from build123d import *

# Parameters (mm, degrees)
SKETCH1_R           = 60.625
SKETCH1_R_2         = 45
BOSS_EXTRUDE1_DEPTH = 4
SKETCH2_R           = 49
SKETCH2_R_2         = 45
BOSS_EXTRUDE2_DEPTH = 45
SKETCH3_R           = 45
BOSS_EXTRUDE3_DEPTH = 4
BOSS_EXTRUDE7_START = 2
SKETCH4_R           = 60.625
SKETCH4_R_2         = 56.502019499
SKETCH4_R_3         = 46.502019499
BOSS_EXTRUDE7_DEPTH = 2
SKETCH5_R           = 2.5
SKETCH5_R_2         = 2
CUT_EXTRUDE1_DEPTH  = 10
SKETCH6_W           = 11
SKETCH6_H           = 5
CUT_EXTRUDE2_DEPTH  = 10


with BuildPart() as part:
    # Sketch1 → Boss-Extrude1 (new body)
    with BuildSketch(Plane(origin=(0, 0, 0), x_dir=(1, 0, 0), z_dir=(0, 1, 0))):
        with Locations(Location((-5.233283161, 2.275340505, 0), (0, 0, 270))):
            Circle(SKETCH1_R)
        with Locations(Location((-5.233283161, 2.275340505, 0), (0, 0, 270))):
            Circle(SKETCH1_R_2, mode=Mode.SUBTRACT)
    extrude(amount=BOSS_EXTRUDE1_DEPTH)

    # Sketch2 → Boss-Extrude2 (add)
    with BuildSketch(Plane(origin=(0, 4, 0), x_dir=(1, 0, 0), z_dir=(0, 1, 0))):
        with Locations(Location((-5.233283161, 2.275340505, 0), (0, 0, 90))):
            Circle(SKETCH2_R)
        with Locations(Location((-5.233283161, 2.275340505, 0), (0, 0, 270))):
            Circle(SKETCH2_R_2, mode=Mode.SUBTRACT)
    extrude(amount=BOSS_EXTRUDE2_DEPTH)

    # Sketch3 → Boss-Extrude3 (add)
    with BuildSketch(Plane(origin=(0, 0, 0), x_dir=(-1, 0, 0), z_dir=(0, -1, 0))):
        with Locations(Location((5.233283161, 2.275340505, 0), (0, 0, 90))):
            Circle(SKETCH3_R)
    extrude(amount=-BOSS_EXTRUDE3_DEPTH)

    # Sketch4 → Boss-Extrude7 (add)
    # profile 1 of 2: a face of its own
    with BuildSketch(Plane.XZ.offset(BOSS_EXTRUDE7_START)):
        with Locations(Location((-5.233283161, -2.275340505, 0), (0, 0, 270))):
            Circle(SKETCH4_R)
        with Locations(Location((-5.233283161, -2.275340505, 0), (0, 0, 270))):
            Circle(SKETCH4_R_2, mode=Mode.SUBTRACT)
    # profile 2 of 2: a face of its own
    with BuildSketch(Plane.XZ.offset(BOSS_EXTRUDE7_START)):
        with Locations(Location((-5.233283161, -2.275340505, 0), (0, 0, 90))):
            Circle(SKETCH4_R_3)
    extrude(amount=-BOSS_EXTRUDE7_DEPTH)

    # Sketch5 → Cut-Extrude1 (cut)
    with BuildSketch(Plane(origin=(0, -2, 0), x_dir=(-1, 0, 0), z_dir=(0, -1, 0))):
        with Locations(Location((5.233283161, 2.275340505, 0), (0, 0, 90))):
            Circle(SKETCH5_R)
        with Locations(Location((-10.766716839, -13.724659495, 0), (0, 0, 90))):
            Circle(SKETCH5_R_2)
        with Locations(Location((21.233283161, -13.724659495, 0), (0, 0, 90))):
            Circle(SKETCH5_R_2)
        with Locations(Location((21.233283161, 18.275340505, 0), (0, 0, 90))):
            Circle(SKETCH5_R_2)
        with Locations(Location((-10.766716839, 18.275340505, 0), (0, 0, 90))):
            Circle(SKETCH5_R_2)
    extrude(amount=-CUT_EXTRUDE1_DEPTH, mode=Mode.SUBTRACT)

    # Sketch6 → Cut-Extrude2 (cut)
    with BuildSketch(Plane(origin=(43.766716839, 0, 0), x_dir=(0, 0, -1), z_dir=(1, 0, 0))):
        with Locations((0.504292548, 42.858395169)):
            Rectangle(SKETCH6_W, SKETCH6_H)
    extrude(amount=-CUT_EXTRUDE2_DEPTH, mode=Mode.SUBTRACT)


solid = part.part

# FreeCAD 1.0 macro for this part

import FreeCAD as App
import Part
import Sketcher

V = App.Vector
Q = App.Units.Quantity


def add_polygon(sketch, points):
    """Adds a closed chain of lines whose ends are joined by coincident constraints."""
    first, n = sketch.GeometryCount, len(points)
    for a, b in zip(points, points[1:] + points[:1]):
        sketch.addGeometry(Part.LineSegment(App.Vector(*a, 0), App.Vector(*b, 0)), False)
    for i in range(n):
        sketch.addConstraint(Sketcher.Constraint("Coincident", first + i, 2, first + (i + 1) % n, 1))

doc = App.newDocument("Part")
params = doc.addObject("Spreadsheet::Sheet", "Params")
for row, (alias, value) in enumerate([
    ("sketch1_diameter", "90 mm"),
    ("sketch1_diameter2", "121.25 mm"),
    ("pad1_length", "4 mm"),
    ("sketch2_diameter", "98 mm"),
    ("sketch2_diameter2", "90 mm"),
    ("pad2_length", "45 mm"),
    ("sketch3_diameter", "90 mm"),
    ("pad3_length", "4 mm"),
    ("sketch4_diameter", "121.25 mm"),
    ("pad4_length", "2 mm"),
    ("sketch5_diameter", "5 mm"),
    ("sketch5_diameter2", "4 mm"),
    ("pocket1_length", "10 mm"),
    ("sketch6_width", "5 mm"),
    ("sketch6_height", "11 mm"),
    ("pocket2_length", "10 mm"),
], start=1):
    params.set(f"A{row}", alias)
    params.set(f"B{row}", "=" + value)
    params.setAlias(f"B{row}", alias)

body = doc.addObject("PartDesign::Body", "Body")

sketch1 = body.newObject("Sketcher::SketchObject", "Sketch")
sketch1.AttachmentSupport = (doc.getObject("XZ_Plane"), [""])
sketch1.MapMode = "FlatFace"
sketch1.addGeometry([
    Part.Circle(V(-5, -2, 0), V(0, 0, 1), 61),
    Part.Circle(V(-5, -2, 0), V(0, 0, 1), 45),
], False)
sketch1.addConstraint([
    Sketcher.Constraint("Coincident", 1, 3, 0, 3),
    Sketcher.Constraint("Diameter", 1, Q("90 mm")),
    Sketcher.Constraint("Diameter", 0, Q("121.25 mm")),
    Sketcher.Constraint("DistanceY", 0, 3, -1, 1, Q("2.275341 mm")),
    Sketcher.Constraint("DistanceX", 0, 3, -1, 1, Q("5.233283 mm")),
])
sketch1.setExpression("Constraints[1]", "Params.sketch1_diameter")
sketch1.setExpression("Constraints[2]", "Params.sketch1_diameter2")
pad1 = body.newObject("PartDesign::Pad", "Pad")
pad1.Profile = sketch1
pad1.setExpression("Length", "Params.pad1_length")
pad1.Reversed = True

sketch2 = body.newObject("Sketcher::SketchObject", "Sketch001")
sketch2.AttachmentSupport = (doc.getObject("XZ_Plane"), [""])
sketch2.MapMode = "FlatFace"
sketch2.AttachmentOffset = App.Placement(V(0, 0, -4), App.Rotation())
sketch2.addGeometry([
    Part.Circle(V(-5, -2, 0), V(0, 0, 1), 49),
    Part.Circle(V(-5, -2, 0), V(0, 0, 1), 45),
], False)
sketch2.addConstraint([
    Sketcher.Constraint("Coincident", 1, 3, 0, 3),
    Sketcher.Constraint("Diameter", 0, Q("98 mm")),
    Sketcher.Constraint("Diameter", 1, Q("90 mm")),
    Sketcher.Constraint("DistanceY", 0, 3, -1, 1, Q("2.275341 mm")),
    Sketcher.Constraint("DistanceX", 0, 3, -1, 1, Q("5.233283 mm")),
])
sketch2.setExpression("Constraints[1]", "Params.sketch2_diameter")
sketch2.setExpression("Constraints[2]", "Params.sketch2_diameter2")
pad2 = body.newObject("PartDesign::Pad", "Pad001")
pad2.Profile = sketch2
pad2.setExpression("Length", "Params.pad2_length")
pad2.Reversed = True

sketch3 = body.newObject("Sketcher::SketchObject", "Sketch002")
sketch3.AttachmentSupport = (doc.getObject("XZ_Plane"), [""])
sketch3.MapMode = "FlatFace"
sketch3.addGeometry(Part.Circle(V(-5, -2, 0), V(0, 0, 1), 45), False)
sketch3.addConstraint([
    Sketcher.Constraint("Diameter", 0, Q("90 mm")),
    Sketcher.Constraint("DistanceY", 0, 3, -1, 1, Q("2.275341 mm")),
    Sketcher.Constraint("DistanceX", 0, 3, -1, 1, Q("5.233283 mm")),
])
sketch3.setExpression("Constraints[0]", "Params.sketch3_diameter")
pad3 = body.newObject("PartDesign::Pad", "Pad002")
pad3.Profile = sketch3
pad3.setExpression("Length", "Params.pad3_length")
pad3.Reversed = True

sketch4 = body.newObject("Sketcher::SketchObject", "Sketch003")
sketch4.AttachmentSupport = (doc.getObject("XZ_Plane"), [""])
sketch4.MapMode = "FlatFace"
sketch4.AttachmentOffset = App.Placement(V(0, 0, 2), App.Rotation())
sketch4.addGeometry([
    Part.Circle(V(-5, -2, 0), V(0, 0, 1), 61),
    Part.Circle(V(-5, -2, 0), V(0, 0, 1), 57),
    Part.Circle(V(-5, -2, 0), V(0, 0, 1), 47),
], False)
sketch4.addConstraint([
    Sketcher.Constraint("Coincident", 1, 3, 0, 3),
    Sketcher.Constraint("Coincident", 2, 3, 0, 3),
    Sketcher.Constraint("Diameter", 0, Q("121.25 mm")),
    Sketcher.Constraint("Diameter", 1, Q("113.004039 mm")),
    Sketcher.Constraint("Diameter", 2, Q("93.004039 mm")),
    Sketcher.Constraint("DistanceY", 0, 3, -1, 1, Q("2.275341 mm")),
    Sketcher.Constraint("DistanceX", 0, 3, -1, 1, Q("5.233283 mm")),
])
sketch4.setExpression("Constraints[2]", "Params.sketch4_diameter")
pad4 = body.newObject("PartDesign::Pad", "Pad003")
pad4.Profile = sketch4
pad4.setExpression("Length", "Params.pad4_length")
pad4.Reversed = True

sketch5 = body.newObject("Sketcher::SketchObject", "Sketch004")
sketch5.AttachmentSupport = (doc.getObject("XZ_Plane"), [""])
sketch5.MapMode = "FlatFace"
sketch5.AttachmentOffset = App.Placement(V(0, 0, 2), App.Rotation())
sketch5.addGeometry([
    Part.Circle(V(-5.2, -2.3, 0), V(0, 0, 1), 2.5),
    Part.Circle(V(10.8, 13.7, 0), V(0, 0, 1), 2),
    Part.Circle(V(-21.2, 13.7, 0), V(0, 0, 1), 2),
    Part.Circle(V(-21.2, -18.3, 0), V(0, 0, 1), 2),
    Part.Circle(V(10.8, -18.3, 0), V(0, 0, 1), 2),
], False)
sketch5.addConstraint([
    Sketcher.Constraint("Equal", 1, 2),
    Sketcher.Constraint("Equal", 2, 3),
    Sketcher.Constraint("Equal", 3, 4),
    Sketcher.Constraint("Horizontal", 1, 3, 2, 3),
    Sketcher.Constraint("Horizontal", 3, 3, 4, 3),
    Sketcher.Constraint("Vertical", 2, 3, 3, 3),
    Sketcher.Constraint("Vertical", 1, 3, 4, 3),
    Sketcher.Constraint("Diameter", 0, Q("5 mm")),
    Sketcher.Constraint("Diameter", 1, Q("4 mm")),
    Sketcher.Constraint("DistanceX", 0, 3, 1, 3, Q("16 mm")),
    Sketcher.Constraint("DistanceY", 0, 3, 1, 3, Q("16 mm")),
    Sketcher.Constraint("DistanceX", 2, 3, 0, 3, Q("16 mm")),
    Sketcher.Constraint("DistanceY", 3, 3, 0, 3, Q("16 mm")),
    Sketcher.Constraint("DistanceY", 0, 3, -1, 1, Q("2.275341 mm")),
    Sketcher.Constraint("DistanceX", 0, 3, -1, 1, Q("5.233283 mm")),
])
sketch5.setExpression("Constraints[7]", "Params.sketch5_diameter")
sketch5.setExpression("Constraints[8]", "Params.sketch5_diameter2")
pocket1 = body.newObject("PartDesign::Pocket", "Pocket")
pocket1.Profile = sketch5
pocket1.setExpression("Length", "Params.pocket1_length")

sketch6 = body.newObject("Sketcher::SketchObject", "Sketch005")
sketch6.AttachmentSupport = (doc.getObject("YZ_Plane"), [""])
sketch6.MapMode = "FlatFace"
sketch6.AttachmentOffset = App.Placement(V(0, 0, 43.766717), App.Rotation())
add_polygon(sketch6, [(45, 5), (40, 5), (40, -6), (45, -6)])
sketch6.addConstraint([
    Sketcher.Constraint("Horizontal", 0),
    Sketcher.Constraint("Vertical", 1),
    Sketcher.Constraint("Horizontal", 2),
    Sketcher.Constraint("Vertical", 3),
    Sketcher.Constraint("DistanceX", 0, 2, 0, 1, Q("5 mm")),
    Sketcher.Constraint("DistanceY", 1, 2, 1, 1, Q("11 mm")),
    Sketcher.Constraint("DistanceX", -1, 1, 0, 2, Q("40.358395 mm")),
    Sketcher.Constraint("DistanceY", -1, 1, 0, 2, Q("4.995707 mm")),
])
sketch6.setExpression("Constraints[8]", "Params.sketch6_width")
sketch6.setExpression("Constraints[9]", "Params.sketch6_height")
pocket2 = body.newObject("PartDesign::Pocket", "Pocket001")
pocket2.Profile = sketch6
pocket2.setExpression("Length", "Params.pocket2_length")

doc.recompute()
